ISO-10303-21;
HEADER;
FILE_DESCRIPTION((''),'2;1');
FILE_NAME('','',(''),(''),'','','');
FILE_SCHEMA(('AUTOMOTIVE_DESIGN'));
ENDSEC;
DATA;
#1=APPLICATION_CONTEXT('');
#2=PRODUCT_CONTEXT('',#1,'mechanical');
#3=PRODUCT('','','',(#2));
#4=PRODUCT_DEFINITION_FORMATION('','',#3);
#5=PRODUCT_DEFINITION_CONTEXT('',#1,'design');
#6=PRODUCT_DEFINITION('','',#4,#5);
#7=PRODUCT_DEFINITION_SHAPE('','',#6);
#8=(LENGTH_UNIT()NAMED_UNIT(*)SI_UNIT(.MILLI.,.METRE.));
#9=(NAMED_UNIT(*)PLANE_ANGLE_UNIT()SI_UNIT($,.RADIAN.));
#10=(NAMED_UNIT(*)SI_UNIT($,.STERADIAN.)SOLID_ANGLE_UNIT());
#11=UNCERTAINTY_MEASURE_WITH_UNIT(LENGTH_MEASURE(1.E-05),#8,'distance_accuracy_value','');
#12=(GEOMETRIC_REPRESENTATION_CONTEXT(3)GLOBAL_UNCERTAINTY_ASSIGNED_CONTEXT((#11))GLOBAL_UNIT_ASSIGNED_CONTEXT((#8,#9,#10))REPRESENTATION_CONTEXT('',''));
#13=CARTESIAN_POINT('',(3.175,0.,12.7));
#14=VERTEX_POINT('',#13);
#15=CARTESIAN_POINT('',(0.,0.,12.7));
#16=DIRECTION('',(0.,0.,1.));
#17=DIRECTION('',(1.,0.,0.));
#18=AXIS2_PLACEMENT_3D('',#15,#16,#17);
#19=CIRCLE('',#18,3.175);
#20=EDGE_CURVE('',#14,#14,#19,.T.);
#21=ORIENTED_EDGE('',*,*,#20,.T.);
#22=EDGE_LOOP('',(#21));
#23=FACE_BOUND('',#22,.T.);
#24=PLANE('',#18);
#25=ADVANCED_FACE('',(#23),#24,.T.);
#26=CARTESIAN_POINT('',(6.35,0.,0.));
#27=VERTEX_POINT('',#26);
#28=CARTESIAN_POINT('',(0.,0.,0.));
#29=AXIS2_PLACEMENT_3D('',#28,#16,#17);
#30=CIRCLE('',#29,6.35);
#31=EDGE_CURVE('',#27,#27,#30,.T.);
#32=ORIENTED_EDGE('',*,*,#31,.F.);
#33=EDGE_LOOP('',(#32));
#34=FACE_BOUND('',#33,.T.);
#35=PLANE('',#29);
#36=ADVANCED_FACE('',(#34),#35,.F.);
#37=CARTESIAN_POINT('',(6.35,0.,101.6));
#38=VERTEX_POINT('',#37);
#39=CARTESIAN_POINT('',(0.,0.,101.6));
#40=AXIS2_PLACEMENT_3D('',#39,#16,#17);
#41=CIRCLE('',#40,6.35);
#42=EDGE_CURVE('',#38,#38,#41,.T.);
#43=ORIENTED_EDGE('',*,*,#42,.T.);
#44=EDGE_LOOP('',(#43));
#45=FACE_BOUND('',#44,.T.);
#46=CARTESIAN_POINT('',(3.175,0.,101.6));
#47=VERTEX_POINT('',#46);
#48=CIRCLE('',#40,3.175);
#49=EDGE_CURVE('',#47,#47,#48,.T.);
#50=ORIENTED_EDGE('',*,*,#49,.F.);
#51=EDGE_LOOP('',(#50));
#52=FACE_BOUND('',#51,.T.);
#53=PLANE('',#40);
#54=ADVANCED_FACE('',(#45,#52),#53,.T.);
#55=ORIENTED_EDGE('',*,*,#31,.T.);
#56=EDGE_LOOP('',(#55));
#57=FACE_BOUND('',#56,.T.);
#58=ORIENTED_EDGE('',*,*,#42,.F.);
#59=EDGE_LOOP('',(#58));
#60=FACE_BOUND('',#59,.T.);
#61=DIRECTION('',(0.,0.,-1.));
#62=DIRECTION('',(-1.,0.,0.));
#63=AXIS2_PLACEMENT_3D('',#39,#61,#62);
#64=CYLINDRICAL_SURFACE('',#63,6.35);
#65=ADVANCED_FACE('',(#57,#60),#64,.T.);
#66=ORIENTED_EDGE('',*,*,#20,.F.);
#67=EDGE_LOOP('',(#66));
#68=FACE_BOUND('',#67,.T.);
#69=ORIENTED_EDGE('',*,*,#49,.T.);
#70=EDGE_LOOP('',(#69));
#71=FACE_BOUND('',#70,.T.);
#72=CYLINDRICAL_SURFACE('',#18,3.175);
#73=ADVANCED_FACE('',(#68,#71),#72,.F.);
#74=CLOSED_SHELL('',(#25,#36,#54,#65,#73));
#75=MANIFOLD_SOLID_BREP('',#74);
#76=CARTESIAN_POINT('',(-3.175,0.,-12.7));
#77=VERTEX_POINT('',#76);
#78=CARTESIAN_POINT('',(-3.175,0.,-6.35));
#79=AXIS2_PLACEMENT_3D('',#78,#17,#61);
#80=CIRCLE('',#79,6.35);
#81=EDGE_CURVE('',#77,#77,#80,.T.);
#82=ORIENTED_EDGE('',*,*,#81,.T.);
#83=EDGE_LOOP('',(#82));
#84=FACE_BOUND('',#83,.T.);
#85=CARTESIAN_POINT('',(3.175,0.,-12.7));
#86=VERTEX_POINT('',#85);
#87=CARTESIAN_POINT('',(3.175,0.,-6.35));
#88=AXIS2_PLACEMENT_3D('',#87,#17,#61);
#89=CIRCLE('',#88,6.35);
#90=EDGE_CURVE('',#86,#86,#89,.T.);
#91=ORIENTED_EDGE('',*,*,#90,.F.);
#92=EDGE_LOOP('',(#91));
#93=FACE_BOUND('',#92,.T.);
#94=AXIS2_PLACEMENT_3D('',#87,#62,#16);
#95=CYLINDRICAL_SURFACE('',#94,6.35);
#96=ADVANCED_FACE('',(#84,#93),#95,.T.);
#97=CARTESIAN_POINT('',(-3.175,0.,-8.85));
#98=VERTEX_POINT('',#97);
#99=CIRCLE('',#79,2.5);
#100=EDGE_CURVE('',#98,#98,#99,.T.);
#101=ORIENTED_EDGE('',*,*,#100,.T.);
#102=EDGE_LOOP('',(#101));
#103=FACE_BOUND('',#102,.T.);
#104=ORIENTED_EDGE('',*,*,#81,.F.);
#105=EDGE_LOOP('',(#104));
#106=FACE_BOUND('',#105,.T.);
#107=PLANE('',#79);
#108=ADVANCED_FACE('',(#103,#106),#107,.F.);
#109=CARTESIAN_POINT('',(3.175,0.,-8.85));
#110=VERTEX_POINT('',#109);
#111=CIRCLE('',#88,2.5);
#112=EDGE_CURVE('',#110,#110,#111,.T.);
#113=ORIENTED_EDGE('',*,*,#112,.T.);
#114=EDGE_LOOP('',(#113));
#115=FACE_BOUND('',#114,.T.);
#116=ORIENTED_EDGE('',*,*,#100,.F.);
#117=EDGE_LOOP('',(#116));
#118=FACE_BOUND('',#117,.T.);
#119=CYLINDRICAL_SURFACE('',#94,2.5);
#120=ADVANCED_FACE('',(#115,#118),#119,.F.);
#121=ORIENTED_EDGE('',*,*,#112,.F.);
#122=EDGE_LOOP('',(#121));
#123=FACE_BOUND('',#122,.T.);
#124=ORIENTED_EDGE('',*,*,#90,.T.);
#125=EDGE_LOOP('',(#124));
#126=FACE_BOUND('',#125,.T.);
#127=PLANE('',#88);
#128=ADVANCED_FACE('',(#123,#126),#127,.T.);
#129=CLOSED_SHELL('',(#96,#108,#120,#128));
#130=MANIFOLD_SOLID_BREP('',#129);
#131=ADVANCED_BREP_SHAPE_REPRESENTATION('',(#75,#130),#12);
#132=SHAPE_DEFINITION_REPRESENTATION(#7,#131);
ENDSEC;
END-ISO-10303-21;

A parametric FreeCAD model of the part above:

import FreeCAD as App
import Part
import Sketcher

V = App.Vector
Q = App.Units.Quantity

doc = App.newDocument("Part")
params = doc.addObject("Spreadsheet::Sheet", "Params")
for row, (alias, value) in enumerate([
    ("sketch1_diameter", "0.5 in"),
    ("pad1_length", "4 in"),
    ("sketch2_diameter", "0.25 in"),
    ("pocket1_length", "3.5 in"),
    ("sketch3_diameter", "0.5 in"),
    ("pad2_length", "0.25 in"),
], start=1):
    params.set(f"A{row}", alias)
    params.set(f"B{row}", "=" + value)
    params.setAlias(f"B{row}", alias)

body = doc.addObject("PartDesign::Body", "Body")

sketch1 = body.newObject("Sketcher::SketchObject", "Sketch")
sketch1.AttachmentSupport = (doc.getObject("XY_Plane"), [""])
sketch1.MapMode = "FlatFace"
sketch1.addGeometry(Part.Circle(V(0, 0, 0), V(0, 0, 1), 6), False)
sketch1.addConstraint([
    Sketcher.Constraint("Coincident", 0, 3, -1, 1),
    Sketcher.Constraint("Diameter", 0, Q("0.5 in")),
])
sketch1.setExpression("Constraints[1]", "Params.sketch1_diameter")
pad1 = body.newObject("PartDesign::Pad", "Pad")
pad1.Profile = sketch1
pad1.setExpression("Length", "Params.pad1_length")

sketch2 = body.newObject("Sketcher::SketchObject", "Sketch001")
sketch2.AttachmentSupport = (doc.getObject("XY_Plane"), [""])
sketch2.MapMode = "FlatFace"
sketch2.AttachmentOffset = App.Placement(V(0, 0, 4 * 25.4), App.Rotation())
sketch2.addGeometry(Part.Circle(V(0, 0, 0), V(0, 0, 1), 3.2), False)
sketch2.addConstraint([
    Sketcher.Constraint("Coincident", 0, 3, -1, 1),
    Sketcher.Constraint("Diameter", 0, Q("0.25 in")),
])
sketch2.setExpression("Constraints[1]", "Params.sketch2_diameter")
pocket1 = body.newObject("PartDesign::Pocket", "Pocket")
pocket1.Profile = sketch2
pocket1.setExpression("Length", "Params.pocket1_length")
body2 = doc.addObject("PartDesign::Body", "Body001")

sketch3 = body2.newObject("Sketcher::SketchObject", "Sketch002")
sketch3.AttachmentSupport = (doc.getObject("YZ_Plane001"), [""])
sketch3.MapMode = "FlatFace"
sketch3.addGeometry([
    Part.Circle(V(0, -6.3, 0), V(0, 0, 1), 6.3),
    Part.Circle(V(0, -6.3, 0), V(0, 0, 1), 2.5),
], False)
sketch3.addConstraint([
    Sketcher.Constraint("Coincident", 1, 3, 0, 3),
    Sketcher.Constraint("PointOnObject", 0, 3, -2),
    Sketcher.Constraint("Diameter", 0, Q("0.5 in")),
    Sketcher.Constraint("Diameter", 1, Q("5 mm")),
    Sketcher.Constraint("DistanceY", 0, 3, -1, 1, Q("0.25 in")),
])
sketch3.setExpression("Constraints[2]", "Params.sketch3_diameter")
pad2 = body2.newObject("PartDesign::Pad", "Pad001")
pad2.Profile = sketch3
pad2.setExpression("Length", "Params.pad2_length")
pad2.Midplane = True

doc.recompute()
